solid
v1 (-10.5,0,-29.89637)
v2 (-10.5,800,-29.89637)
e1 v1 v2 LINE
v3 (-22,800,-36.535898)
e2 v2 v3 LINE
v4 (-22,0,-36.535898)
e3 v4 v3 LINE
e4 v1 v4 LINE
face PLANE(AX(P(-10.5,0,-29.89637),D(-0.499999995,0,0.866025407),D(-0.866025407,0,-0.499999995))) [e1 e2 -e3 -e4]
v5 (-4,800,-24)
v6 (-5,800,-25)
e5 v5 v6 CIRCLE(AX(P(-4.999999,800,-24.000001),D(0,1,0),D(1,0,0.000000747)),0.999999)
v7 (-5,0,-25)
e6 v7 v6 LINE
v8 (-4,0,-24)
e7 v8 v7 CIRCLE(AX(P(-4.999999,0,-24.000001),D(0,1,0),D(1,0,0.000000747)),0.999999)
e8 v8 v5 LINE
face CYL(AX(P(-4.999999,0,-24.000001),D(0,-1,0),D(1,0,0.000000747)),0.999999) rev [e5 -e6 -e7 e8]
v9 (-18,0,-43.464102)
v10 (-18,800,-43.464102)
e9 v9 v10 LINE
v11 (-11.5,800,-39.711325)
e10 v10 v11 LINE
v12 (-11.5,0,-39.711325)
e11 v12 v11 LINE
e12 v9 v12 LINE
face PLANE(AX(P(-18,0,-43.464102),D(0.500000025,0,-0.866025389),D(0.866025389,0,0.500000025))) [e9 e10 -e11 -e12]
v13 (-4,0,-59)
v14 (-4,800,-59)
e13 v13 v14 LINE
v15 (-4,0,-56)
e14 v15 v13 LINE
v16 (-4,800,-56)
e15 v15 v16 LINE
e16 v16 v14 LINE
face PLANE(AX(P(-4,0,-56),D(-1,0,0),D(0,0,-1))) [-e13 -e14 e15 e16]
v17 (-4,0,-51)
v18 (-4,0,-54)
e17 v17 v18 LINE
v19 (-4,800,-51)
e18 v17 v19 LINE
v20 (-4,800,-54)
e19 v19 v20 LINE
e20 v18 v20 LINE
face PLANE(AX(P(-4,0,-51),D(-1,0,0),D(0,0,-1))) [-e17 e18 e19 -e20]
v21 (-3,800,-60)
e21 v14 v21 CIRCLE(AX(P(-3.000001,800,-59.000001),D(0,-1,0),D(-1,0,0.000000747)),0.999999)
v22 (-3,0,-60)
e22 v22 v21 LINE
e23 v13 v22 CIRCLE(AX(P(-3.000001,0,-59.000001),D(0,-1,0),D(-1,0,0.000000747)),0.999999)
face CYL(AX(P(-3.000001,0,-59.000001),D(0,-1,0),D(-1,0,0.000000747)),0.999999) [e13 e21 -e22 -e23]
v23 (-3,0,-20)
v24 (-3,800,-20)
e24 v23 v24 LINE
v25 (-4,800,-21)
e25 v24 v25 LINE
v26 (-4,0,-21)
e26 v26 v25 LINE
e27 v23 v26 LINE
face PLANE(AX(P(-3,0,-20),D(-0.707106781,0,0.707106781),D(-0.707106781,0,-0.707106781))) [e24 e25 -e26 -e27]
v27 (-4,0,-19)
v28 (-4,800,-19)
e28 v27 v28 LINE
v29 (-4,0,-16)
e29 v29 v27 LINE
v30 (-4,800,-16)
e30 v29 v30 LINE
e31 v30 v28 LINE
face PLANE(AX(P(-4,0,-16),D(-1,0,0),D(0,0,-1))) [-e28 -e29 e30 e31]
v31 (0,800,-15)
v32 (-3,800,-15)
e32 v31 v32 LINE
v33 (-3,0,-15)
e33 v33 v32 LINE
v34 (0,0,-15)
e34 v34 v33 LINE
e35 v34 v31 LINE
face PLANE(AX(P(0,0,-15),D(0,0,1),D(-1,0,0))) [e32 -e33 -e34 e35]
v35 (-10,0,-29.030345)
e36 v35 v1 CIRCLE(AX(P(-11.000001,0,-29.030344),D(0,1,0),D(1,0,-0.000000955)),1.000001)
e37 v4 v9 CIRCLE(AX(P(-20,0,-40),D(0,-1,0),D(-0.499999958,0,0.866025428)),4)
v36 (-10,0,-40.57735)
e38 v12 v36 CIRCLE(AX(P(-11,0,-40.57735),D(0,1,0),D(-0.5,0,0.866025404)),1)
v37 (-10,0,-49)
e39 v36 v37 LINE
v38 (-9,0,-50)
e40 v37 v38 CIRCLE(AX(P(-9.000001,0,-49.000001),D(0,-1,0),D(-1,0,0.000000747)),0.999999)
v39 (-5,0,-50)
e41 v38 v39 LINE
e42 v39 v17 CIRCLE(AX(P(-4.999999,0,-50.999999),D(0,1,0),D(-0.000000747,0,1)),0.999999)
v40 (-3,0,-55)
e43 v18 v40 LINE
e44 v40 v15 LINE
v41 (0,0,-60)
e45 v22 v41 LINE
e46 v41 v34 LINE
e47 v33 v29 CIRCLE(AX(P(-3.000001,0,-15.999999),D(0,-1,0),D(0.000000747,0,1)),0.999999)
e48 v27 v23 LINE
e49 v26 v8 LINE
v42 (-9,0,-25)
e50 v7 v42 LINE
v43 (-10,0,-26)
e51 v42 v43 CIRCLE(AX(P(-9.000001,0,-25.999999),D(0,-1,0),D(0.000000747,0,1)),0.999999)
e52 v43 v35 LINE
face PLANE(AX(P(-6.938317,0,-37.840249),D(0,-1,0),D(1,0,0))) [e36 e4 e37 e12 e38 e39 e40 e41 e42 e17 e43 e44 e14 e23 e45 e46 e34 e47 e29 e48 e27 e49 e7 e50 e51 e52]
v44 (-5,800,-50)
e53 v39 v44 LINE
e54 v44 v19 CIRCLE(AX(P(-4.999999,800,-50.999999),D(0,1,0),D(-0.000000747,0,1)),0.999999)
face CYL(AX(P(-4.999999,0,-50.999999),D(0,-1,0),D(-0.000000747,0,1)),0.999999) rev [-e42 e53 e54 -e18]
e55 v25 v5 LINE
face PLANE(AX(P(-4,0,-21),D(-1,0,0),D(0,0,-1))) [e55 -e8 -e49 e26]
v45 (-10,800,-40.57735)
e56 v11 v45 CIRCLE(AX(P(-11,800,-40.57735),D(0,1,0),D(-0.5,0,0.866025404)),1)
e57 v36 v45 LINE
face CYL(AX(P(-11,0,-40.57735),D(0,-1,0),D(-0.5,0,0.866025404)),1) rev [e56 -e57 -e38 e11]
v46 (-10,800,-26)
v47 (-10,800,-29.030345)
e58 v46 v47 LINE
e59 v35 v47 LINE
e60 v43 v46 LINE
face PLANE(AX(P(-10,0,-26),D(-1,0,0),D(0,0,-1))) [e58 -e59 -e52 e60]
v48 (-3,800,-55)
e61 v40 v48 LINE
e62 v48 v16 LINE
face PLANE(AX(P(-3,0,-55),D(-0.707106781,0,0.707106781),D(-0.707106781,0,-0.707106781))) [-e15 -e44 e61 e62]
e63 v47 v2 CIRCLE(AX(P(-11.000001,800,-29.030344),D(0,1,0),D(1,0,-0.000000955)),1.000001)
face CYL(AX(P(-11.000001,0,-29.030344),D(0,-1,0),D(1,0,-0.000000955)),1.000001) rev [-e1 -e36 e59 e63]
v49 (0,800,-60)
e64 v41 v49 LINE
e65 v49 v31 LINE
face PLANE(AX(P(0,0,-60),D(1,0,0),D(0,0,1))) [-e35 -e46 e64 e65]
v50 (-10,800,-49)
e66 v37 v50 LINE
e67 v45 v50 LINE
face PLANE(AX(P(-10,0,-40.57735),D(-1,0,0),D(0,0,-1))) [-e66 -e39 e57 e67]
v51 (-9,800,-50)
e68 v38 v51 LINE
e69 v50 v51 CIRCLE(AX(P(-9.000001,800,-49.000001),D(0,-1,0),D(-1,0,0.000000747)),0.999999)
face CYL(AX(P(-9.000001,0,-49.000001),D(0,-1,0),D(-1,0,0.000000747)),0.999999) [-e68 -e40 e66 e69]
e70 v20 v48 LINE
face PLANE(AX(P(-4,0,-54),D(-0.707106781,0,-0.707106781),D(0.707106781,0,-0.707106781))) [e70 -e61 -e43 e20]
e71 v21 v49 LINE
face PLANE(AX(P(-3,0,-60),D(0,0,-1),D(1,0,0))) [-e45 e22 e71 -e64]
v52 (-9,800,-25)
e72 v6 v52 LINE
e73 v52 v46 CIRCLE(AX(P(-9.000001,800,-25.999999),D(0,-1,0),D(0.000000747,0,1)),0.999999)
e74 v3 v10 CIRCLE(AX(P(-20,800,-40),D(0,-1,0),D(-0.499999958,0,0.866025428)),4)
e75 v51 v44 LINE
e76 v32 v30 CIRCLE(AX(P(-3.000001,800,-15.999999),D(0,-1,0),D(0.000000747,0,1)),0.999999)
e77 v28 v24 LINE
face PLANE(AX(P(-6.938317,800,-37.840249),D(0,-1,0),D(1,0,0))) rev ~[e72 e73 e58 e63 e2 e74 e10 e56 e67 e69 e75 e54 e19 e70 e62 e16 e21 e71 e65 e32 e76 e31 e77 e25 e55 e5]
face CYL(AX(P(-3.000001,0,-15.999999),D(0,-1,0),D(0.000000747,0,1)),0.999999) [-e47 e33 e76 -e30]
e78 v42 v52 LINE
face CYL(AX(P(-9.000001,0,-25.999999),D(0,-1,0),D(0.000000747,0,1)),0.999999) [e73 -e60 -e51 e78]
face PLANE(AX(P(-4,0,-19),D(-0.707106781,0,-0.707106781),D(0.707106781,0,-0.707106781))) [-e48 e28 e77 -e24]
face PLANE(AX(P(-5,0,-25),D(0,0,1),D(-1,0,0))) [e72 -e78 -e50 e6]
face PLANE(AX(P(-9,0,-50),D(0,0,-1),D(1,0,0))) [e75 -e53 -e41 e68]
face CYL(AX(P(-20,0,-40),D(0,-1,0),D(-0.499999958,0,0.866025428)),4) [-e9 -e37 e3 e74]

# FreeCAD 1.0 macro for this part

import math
import FreeCAD as App
import Part
import Sketcher
from FreeCAD import Vector
Q = App.Units.Quantity

doc = App.newDocument("Part")
body = doc.addObject("PartDesign::Body", "Body")

sketch1 = body.newObject("Sketcher::SketchObject", "Sketch")
sketch1.AttachmentSupport = (doc.getObject("XZ_Plane"), [""])
sketch1.MapMode = "FlatFace"
sketch1.addGeometry(Part.ArcOfCircle(Part.Circle(Vector(-11, -29, 0), Vector(0, 0, 1), 1), math.radians(-60), math.radians(0)), False)
sketch1.addGeometry(Part.LineSegment(Vector(-10.5, -29.9, 0), Vector(-22, -36.5, 0)), False)
sketch1.addGeometry(Part.ArcOfCircle(Part.Circle(Vector(-20, -40, 0), Vector(0, 0, 1), 4), math.radians(120), math.radians(300)), False)
sketch1.addGeometry(Part.LineSegment(Vector(-18, -43.5, 0), Vector(-11.5, -39.7, 0)), False)
sketch1.addGeometry(Part.ArcOfCircle(Part.Circle(Vector(-11, -40.6, 0), Vector(0, 0, 1), 1), math.radians(0), math.radians(120)), False)
sketch1.addGeometry(Part.LineSegment(Vector(-10, -40.6, 0), Vector(-10, -49, 0)), False)
sketch1.addGeometry(Part.ArcOfCircle(Part.Circle(Vector(-9, -49, 0), Vector(0, 0, 1), 1), math.radians(180), math.radians(270)), False)
sketch1.addGeometry(Part.LineSegment(Vector(-9, -50, 0), Vector(-5, -50, 0)), False)
sketch1.addGeometry(Part.ArcOfCircle(Part.Circle(Vector(-5, -51, 0), Vector(0, 0, 1), 1), math.radians(0), math.radians(90)), False)
sketch1.addGeometry(Part.LineSegment(Vector(-4, -51, 0), Vector(-4, -54, 0)), False)
sketch1.addGeometry(Part.LineSegment(Vector(-4, -54, 0), Vector(-3, -55, 0)), False)
sketch1.addGeometry(Part.LineSegment(Vector(-3, -55, 0), Vector(-4, -56, 0)), False)
sketch1.addGeometry(Part.LineSegment(Vector(-4, -56, 0), Vector(-4, -59, 0)), False)
sketch1.addGeometry(Part.ArcOfCircle(Part.Circle(Vector(-3, -59, 0), Vector(0, 0, 1), 1), math.radians(180), math.radians(270)), False)
sketch1.addGeometry(Part.LineSegment(Vector(-3, -60, 0), Vector(0, -60, 0)), False)
sketch1.addGeometry(Part.LineSegment(Vector(0, -60, 0), Vector(0, -15, 0)), False)
sketch1.addGeometry(Part.LineSegment(Vector(0, -15, 0), Vector(-3, -15, 0)), False)
sketch1.addGeometry(Part.ArcOfCircle(Part.Circle(Vector(-3, -16, 0), Vector(0, 0, 1), 1), math.radians(90), math.radians(180)), False)
sketch1.addGeometry(Part.LineSegment(Vector(-4, -16, 0), Vector(-4, -19, 0)), False)
sketch1.addGeometry(Part.LineSegment(Vector(-4, -19, 0), Vector(-3, -20, 0)), False)
sketch1.addGeometry(Part.LineSegment(Vector(-3, -20, 0), Vector(-4, -21, 0)), False)
sketch1.addGeometry(Part.LineSegment(Vector(-4, -21, 0), Vector(-4, -24, 0)), False)
sketch1.addGeometry(Part.ArcOfCircle(Part.Circle(Vector(-5, -24, 0), Vector(0, 0, 1), 1), math.radians(-90), math.radians(0)), False)
sketch1.addGeometry(Part.LineSegment(Vector(-5, -25, 0), Vector(-9, -25, 0)), False)
sketch1.addGeometry(Part.ArcOfCircle(Part.Circle(Vector(-9, -26, 0), Vector(0, 0, 1), 1), math.radians(90), math.radians(180)), False)
sketch1.addGeometry(Part.LineSegment(Vector(-10, -26, 0), Vector(-10, -29, 0)), False)
sketch1.addConstraint(Sketcher.Constraint("Tangent", 0, 1, 1, 1))
sketch1.addConstraint(Sketcher.Constraint("Tangent", 1, 2, 2, 1))
sketch1.addConstraint(Sketcher.Constraint("Tangent", 2, 2, 3, 1))
sketch1.addConstraint(Sketcher.Constraint("Tangent", 3, 2, 4, 2))
sketch1.addConstraint(Sketcher.Constraint("Tangent", 4, 1, 5, 1))
sketch1.addConstraint(Sketcher.Constraint("Tangent", 5, 2, 6, 1))
sketch1.addConstraint(Sketcher.Constraint("Tangent", 6, 2, 7, 1))
sketch1.addConstraint(Sketcher.Constraint("Tangent", 7, 2, 8, 2))
sketch1.addConstraint(Sketcher.Constraint("Tangent", 8, 1, 9, 1))
sketch1.addConstraint(Sketcher.Constraint("Coincident", 9, 2, 10, 1))
sketch1.addConstraint(Sketcher.Constraint("Coincident", 10, 2, 11, 1))
sketch1.addConstraint(Sketcher.Constraint("Coincident", 11, 2, 12, 1))
sketch1.addConstraint(Sketcher.Constraint("Tangent", 12, 2, 13, 1))
sketch1.addConstraint(Sketcher.Constraint("Tangent", 13, 2, 14, 1))
sketch1.addConstraint(Sketcher.Constraint("Coincident", 14, 2, 15, 1))
sketch1.addConstraint(Sketcher.Constraint("Coincident", 15, 2, 16, 1))
sketch1.addConstraint(Sketcher.Constraint("Tangent", 16, 2, 17, 1))
sketch1.addConstraint(Sketcher.Constraint("Tangent", 17, 2, 18, 1))
sketch1.addConstraint(Sketcher.Constraint("Coincident", 18, 2, 19, 1))
sketch1.addConstraint(Sketcher.Constraint("Coincident", 19, 2, 20, 1))
sketch1.addConstraint(Sketcher.Constraint("Coincident", 20, 2, 21, 1))
sketch1.addConstraint(Sketcher.Constraint("Tangent", 21, 2, 22, 2))
sketch1.addConstraint(Sketcher.Constraint("Tangent", 22, 1, 23, 1))
sketch1.addConstraint(Sketcher.Constraint("Tangent", 23, 2, 24, 1))
sketch1.addConstraint(Sketcher.Constraint("Tangent", 24, 2, 25, 1))
sketch1.addConstraint(Sketcher.Constraint("Tangent", 25, 2, 0, 2))
sketch1.addConstraint(Sketcher.Constraint("Vertical", 5))
sketch1.addConstraint(Sketcher.Constraint("Horizontal", 7))
sketch1.addConstraint(Sketcher.Constraint("Vertical", 9))
sketch1.addConstraint(Sketcher.Constraint("Vertical", 12))
sketch1.addConstraint(Sketcher.Constraint("Horizontal", 14))
sketch1.addConstraint(Sketcher.Constraint("Vertical", 15))
sketch1.addConstraint(Sketcher.Constraint("Horizontal", 16))
sketch1.addConstraint(Sketcher.Constraint("Vertical", 18))
sketch1.addConstraint(Sketcher.Constraint("Vertical", 21))
sketch1.addConstraint(Sketcher.Constraint("Horizontal", 23))
sketch1.addConstraint(Sketcher.Constraint("Vertical", 25))
sketch1.addConstraint(Sketcher.Constraint("Equal", 0, 4))
sketch1.addConstraint(Sketcher.Constraint("Equal", 4, 6))
sketch1.addConstraint(Sketcher.Constraint("Equal", 6, 8))
sketch1.addConstraint(Sketcher.Constraint("Equal", 8, 13))
sketch1.addConstraint(Sketcher.Constraint("Equal", 13, 17))
sketch1.addConstraint(Sketcher.Constraint("Equal", 17, 22))
sketch1.addConstraint(Sketcher.Constraint("Equal", 22, 24))
sketch1.addConstraint(Sketcher.Constraint("PointOnObject", 14, 2, -2))
sketch1.addConstraint(Sketcher.Constraint("Parallel", 1, 3))
sketch1.addConstraint(Sketcher.Constraint("Perpendicular", 10, 11))
sketch1.addConstraint(Sketcher.Constraint("Perpendicular", 11, 19))
sketch1.addConstraint(Sketcher.Constraint("Perpendicular", 19, 20))
sketch1.addConstraint(Sketcher.Constraint("Vertical", 0, 3, 4, 3))
sketch1.addConstraint(Sketcher.Constraint("Vertical", 13, 3, 17, 3))
sketch1.addConstraint(Sketcher.Constraint("Vertical", 8, 3, 22, 3))
sketch1.addConstraint(Sketcher.Constraint("Vertical", 17, 3, 10, 2))
sketch1.addConstraint(Sketcher.Constraint("Vertical", 9, 2, 11, 2))
sketch1.addConstraint(Sketcher.Constraint("Vertical", 16, 2, 19, 2))
sketch1.addConstraint(Sketcher.Constraint("Equal", 16, 9))
sketch1.addConstraint(Sketcher.Constraint("Equal", 9, 12))
sketch1.addConstraint(Sketcher.Constraint("Equal", 12, 18))
sketch1.addConstraint(Sketcher.Constraint("Equal", 18, 21))
sketch1.addConstraint(Sketcher.Constraint("Equal", 10, 11))
sketch1.addConstraint(Sketcher.Constraint("Radius", 0, Q("1.000001 mm")))
sketch1.addConstraint(Sketcher.Constraint("Radius", 2, Q("4 mm")))
sketch1.addConstraint(Sketcher.Constraint("DistanceX", 7, 1, 7, 2, Q("4 mm")))
sketch1.addConstraint(Sketcher.Constraint("DistanceX", 14, 1, 14, 2, Q("3 mm")))
sketch1.addConstraint(Sketcher.Constraint("DistanceY", 15, 1, 15, 2, Q("45 mm")))
sketch1.addConstraint(Sketcher.Constraint("Angle", 1, Q("-150 deg")))
sketch1.addConstraint(Sketcher.Constraint("DistanceX", 2, 3, -1, 1, Q("20 mm")))
sketch1.addConstraint(Sketcher.Constraint("DistanceY", 2, 3, -1, 1, Q("40 mm")))
sketch1.addConstraint(Sketcher.Constraint("DistanceY", 6, 3, -1, 1, Q("49.000001 mm")))
pad1 = body.newObject("PartDesign::Pad", "Pad")
pad1.Profile = sketch1
pad1.Length = 800
pad1.Reversed = True

doc.recompute()
